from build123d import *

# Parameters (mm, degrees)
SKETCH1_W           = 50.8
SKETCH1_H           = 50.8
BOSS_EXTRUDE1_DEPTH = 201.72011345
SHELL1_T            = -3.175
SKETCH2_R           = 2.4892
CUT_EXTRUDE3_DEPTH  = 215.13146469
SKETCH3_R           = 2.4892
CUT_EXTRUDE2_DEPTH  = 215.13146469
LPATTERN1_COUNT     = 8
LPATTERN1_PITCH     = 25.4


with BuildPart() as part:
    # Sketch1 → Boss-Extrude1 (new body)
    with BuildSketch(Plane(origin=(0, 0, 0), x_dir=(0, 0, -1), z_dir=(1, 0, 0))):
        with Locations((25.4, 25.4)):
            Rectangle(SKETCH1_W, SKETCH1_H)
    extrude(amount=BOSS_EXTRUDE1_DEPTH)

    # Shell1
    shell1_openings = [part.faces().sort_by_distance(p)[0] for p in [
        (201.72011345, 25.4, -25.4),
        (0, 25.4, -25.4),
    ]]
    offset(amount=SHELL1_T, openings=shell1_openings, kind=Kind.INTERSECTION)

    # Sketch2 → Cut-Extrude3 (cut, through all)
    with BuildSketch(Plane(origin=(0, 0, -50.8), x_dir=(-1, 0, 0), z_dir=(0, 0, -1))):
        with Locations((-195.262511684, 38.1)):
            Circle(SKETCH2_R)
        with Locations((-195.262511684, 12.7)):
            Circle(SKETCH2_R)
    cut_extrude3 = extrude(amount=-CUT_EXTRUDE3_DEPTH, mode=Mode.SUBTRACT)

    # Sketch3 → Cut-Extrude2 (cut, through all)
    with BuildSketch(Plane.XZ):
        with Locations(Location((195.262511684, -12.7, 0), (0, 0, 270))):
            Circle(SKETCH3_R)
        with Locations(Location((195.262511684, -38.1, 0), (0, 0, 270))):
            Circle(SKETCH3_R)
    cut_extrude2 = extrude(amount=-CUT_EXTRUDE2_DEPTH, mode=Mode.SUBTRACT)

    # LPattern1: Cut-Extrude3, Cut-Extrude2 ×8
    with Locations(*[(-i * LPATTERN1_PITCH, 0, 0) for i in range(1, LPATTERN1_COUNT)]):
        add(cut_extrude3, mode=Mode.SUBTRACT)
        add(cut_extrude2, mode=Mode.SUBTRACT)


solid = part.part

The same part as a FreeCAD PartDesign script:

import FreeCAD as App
import Part
import Sketcher

V = App.Vector
Q = App.Units.Quantity


def faces_at(feature, points):
    """Names of the faces that lie closest to the given points."""
    faces = feature.Shape.Faces
    near = lambda p: min(range(len(faces)), key=lambda i: faces[i].distToShape(Part.Vertex(*p))[0])
    return sorted({f"Face{near(p) + 1}" for p in points})


def add_polygon(sketch, points):
    """Adds a closed chain of lines whose ends are joined by coincident constraints."""
    first, n = sketch.GeometryCount, len(points)
    for a, b in zip(points, points[1:] + points[:1]):
        sketch.addGeometry(Part.LineSegment(App.Vector(*a, 0), App.Vector(*b, 0)), False)
    for i in range(n):
        sketch.addConstraint(Sketcher.Constraint("Coincident", first + i, 2, first + (i + 1) % n, 1))

doc = App.newDocument("Part")
params = doc.addObject("Spreadsheet::Sheet", "Params")
for row, (alias, value) in enumerate([
    ("sketch1_width", "2 in"),
    ("pad1_length", "201.720113 mm"),
    ("thickness_wall", "0.125 in"),
    ("sketch2_diameter", "0.196 in"),
    ("sketch3_diameter", "0.196 in"),
    ("linearpattern_pitch", "1 in"),
], start=1):
    params.set(f"A{row}", alias)
    params.set(f"B{row}", "=" + value)
    params.setAlias(f"B{row}", alias)

body = doc.addObject("PartDesign::Body", "Body")

# Sketch on YZ plane
sketch1 = body.newObject("Sketcher::SketchObject", "Sketch")
sketch1.AttachmentSupport = (doc.getObject("YZ_Plane"), [""])
sketch1.MapMode = "FlatFace"
add_polygon(sketch1, [(51, 0), (0, 0), (0, -51), (51, -51)])  # lines 0-3
sketch1.addConstraint([
    Sketcher.Constraint("Horizontal", 0),
    Sketcher.Constraint("Vertical", 1),
    Sketcher.Constraint("Horizontal", 2),
    Sketcher.Constraint("Vertical", 3),
    Sketcher.Constraint("Coincident", 0, 2, -1, 1),
    Sketcher.Constraint("Equal", 2, 1),
    Sketcher.Constraint("DistanceX", 0, 2, 0, 1, Q("2 in")),
])
sketch1.setExpression("Constraints[10]", "Params.sketch1_width")
pad1 = body.newObject("PartDesign::Pad", "Pad")
pad1.Profile = sketch1
pad1.setExpression("Length", "Params.pad1_length")
doc.recompute()

thickness = body.newObject("PartDesign::Thickness", "Thickness")
thickness.Base = (pad1, faces_at(pad1, [(201.72, 25.4, -25.4), (0, 25.4, -25.4)]))
thickness.setExpression("Value", "Params.thickness_wall")
thickness.Reversed = True
thickness.Join = "Intersection"

# Sketch on XY plane
sketch2 = body.newObject("Sketcher::SketchObject", "Sketch001")
sketch2.AttachmentSupport = (doc.getObject("XY_Plane"), [""])
sketch2.MapMode = "FlatFace"
sketch2.AttachmentOffset = App.Placement(V(0, 0, -2 * 25.4), App.Rotation())
sketch2.addGeometry([
    Part.Circle(V(195.3, 38.1, 0), V(0, 0, 1), 2.5),
    Part.Circle(V(195.3, 12.7, 0), V(0, 0, 1), 2.5),
], False)
sketch2.addConstraint([
    Sketcher.Constraint("Equal", 0, 1),
    Sketcher.Constraint("Vertical", 0, 3, 1, 3),
    Sketcher.Constraint("Diameter", 0, Q("0.196 in")),
    Sketcher.Constraint("DistanceY", 1, 3, 0, 3, Q("1 in")),
    Sketcher.Constraint("DistanceY", -1, 1, 0, 3, Q("1.5 in")),
    Sketcher.Constraint("DistanceX", -1, 1, 0, 3, 195.262512),
])
sketch2.setExpression("Constraints[2]", "Params.sketch2_diameter")
pocket1 = body.newObject("PartDesign::Pocket", "Pocket")
pocket1.Profile = sketch2
pocket1.Type = "ThroughAll"
pocket1.Reversed = True

# Sketch on XZ plane
sketch3 = body.newObject("Sketcher::SketchObject", "Sketch002")
sketch3.AttachmentSupport = (doc.getObject("XZ_Plane"), [""])
sketch3.MapMode = "FlatFace"
sketch3.addGeometry([
    Part.Circle(V(195.3, -12.7, 0), V(0, 0, 1), 2.5),
    Part.Circle(V(195.3, -38.1, 0), V(0, 0, 1), 2.5),
], False)
sketch3.addConstraint([
    Sketcher.Constraint("Equal", 0, 1),
    Sketcher.Constraint("Vertical", 0, 3, 1, 3),
    Sketcher.Constraint("Diameter", 0, Q("0.196 in")),
    Sketcher.Constraint("DistanceY", 1, 3, 0, 3, Q("1 in")),
    Sketcher.Constraint("DistanceY", 0, 3, -1, 1, Q("0.5 in")),
    Sketcher.Constraint("DistanceX", -1, 1, 0, 3, 195.262512),
])
sketch3.setExpression("Constraints[2]", "Params.sketch3_diameter")
pocket2 = body.newObject("PartDesign::Pocket", "Pocket001")
pocket2.Profile = sketch3
pocket2.Type = "ThroughAll"
doc.recompute()

linearpattern = body.newObject("PartDesign::LinearPattern", "LinearPattern")
linearpattern.Originals = [pocket1, pocket2]
linearpattern.Direction = (doc.getObject("X_Axis"), [""])
linearpattern.Mode = "offset"
linearpattern.setExpression("Offset", "Params.linearpattern_pitch")
linearpattern.Occurrences = 8
linearpattern.Reversed = True
body.Tip = linearpattern

doc.recompute()
